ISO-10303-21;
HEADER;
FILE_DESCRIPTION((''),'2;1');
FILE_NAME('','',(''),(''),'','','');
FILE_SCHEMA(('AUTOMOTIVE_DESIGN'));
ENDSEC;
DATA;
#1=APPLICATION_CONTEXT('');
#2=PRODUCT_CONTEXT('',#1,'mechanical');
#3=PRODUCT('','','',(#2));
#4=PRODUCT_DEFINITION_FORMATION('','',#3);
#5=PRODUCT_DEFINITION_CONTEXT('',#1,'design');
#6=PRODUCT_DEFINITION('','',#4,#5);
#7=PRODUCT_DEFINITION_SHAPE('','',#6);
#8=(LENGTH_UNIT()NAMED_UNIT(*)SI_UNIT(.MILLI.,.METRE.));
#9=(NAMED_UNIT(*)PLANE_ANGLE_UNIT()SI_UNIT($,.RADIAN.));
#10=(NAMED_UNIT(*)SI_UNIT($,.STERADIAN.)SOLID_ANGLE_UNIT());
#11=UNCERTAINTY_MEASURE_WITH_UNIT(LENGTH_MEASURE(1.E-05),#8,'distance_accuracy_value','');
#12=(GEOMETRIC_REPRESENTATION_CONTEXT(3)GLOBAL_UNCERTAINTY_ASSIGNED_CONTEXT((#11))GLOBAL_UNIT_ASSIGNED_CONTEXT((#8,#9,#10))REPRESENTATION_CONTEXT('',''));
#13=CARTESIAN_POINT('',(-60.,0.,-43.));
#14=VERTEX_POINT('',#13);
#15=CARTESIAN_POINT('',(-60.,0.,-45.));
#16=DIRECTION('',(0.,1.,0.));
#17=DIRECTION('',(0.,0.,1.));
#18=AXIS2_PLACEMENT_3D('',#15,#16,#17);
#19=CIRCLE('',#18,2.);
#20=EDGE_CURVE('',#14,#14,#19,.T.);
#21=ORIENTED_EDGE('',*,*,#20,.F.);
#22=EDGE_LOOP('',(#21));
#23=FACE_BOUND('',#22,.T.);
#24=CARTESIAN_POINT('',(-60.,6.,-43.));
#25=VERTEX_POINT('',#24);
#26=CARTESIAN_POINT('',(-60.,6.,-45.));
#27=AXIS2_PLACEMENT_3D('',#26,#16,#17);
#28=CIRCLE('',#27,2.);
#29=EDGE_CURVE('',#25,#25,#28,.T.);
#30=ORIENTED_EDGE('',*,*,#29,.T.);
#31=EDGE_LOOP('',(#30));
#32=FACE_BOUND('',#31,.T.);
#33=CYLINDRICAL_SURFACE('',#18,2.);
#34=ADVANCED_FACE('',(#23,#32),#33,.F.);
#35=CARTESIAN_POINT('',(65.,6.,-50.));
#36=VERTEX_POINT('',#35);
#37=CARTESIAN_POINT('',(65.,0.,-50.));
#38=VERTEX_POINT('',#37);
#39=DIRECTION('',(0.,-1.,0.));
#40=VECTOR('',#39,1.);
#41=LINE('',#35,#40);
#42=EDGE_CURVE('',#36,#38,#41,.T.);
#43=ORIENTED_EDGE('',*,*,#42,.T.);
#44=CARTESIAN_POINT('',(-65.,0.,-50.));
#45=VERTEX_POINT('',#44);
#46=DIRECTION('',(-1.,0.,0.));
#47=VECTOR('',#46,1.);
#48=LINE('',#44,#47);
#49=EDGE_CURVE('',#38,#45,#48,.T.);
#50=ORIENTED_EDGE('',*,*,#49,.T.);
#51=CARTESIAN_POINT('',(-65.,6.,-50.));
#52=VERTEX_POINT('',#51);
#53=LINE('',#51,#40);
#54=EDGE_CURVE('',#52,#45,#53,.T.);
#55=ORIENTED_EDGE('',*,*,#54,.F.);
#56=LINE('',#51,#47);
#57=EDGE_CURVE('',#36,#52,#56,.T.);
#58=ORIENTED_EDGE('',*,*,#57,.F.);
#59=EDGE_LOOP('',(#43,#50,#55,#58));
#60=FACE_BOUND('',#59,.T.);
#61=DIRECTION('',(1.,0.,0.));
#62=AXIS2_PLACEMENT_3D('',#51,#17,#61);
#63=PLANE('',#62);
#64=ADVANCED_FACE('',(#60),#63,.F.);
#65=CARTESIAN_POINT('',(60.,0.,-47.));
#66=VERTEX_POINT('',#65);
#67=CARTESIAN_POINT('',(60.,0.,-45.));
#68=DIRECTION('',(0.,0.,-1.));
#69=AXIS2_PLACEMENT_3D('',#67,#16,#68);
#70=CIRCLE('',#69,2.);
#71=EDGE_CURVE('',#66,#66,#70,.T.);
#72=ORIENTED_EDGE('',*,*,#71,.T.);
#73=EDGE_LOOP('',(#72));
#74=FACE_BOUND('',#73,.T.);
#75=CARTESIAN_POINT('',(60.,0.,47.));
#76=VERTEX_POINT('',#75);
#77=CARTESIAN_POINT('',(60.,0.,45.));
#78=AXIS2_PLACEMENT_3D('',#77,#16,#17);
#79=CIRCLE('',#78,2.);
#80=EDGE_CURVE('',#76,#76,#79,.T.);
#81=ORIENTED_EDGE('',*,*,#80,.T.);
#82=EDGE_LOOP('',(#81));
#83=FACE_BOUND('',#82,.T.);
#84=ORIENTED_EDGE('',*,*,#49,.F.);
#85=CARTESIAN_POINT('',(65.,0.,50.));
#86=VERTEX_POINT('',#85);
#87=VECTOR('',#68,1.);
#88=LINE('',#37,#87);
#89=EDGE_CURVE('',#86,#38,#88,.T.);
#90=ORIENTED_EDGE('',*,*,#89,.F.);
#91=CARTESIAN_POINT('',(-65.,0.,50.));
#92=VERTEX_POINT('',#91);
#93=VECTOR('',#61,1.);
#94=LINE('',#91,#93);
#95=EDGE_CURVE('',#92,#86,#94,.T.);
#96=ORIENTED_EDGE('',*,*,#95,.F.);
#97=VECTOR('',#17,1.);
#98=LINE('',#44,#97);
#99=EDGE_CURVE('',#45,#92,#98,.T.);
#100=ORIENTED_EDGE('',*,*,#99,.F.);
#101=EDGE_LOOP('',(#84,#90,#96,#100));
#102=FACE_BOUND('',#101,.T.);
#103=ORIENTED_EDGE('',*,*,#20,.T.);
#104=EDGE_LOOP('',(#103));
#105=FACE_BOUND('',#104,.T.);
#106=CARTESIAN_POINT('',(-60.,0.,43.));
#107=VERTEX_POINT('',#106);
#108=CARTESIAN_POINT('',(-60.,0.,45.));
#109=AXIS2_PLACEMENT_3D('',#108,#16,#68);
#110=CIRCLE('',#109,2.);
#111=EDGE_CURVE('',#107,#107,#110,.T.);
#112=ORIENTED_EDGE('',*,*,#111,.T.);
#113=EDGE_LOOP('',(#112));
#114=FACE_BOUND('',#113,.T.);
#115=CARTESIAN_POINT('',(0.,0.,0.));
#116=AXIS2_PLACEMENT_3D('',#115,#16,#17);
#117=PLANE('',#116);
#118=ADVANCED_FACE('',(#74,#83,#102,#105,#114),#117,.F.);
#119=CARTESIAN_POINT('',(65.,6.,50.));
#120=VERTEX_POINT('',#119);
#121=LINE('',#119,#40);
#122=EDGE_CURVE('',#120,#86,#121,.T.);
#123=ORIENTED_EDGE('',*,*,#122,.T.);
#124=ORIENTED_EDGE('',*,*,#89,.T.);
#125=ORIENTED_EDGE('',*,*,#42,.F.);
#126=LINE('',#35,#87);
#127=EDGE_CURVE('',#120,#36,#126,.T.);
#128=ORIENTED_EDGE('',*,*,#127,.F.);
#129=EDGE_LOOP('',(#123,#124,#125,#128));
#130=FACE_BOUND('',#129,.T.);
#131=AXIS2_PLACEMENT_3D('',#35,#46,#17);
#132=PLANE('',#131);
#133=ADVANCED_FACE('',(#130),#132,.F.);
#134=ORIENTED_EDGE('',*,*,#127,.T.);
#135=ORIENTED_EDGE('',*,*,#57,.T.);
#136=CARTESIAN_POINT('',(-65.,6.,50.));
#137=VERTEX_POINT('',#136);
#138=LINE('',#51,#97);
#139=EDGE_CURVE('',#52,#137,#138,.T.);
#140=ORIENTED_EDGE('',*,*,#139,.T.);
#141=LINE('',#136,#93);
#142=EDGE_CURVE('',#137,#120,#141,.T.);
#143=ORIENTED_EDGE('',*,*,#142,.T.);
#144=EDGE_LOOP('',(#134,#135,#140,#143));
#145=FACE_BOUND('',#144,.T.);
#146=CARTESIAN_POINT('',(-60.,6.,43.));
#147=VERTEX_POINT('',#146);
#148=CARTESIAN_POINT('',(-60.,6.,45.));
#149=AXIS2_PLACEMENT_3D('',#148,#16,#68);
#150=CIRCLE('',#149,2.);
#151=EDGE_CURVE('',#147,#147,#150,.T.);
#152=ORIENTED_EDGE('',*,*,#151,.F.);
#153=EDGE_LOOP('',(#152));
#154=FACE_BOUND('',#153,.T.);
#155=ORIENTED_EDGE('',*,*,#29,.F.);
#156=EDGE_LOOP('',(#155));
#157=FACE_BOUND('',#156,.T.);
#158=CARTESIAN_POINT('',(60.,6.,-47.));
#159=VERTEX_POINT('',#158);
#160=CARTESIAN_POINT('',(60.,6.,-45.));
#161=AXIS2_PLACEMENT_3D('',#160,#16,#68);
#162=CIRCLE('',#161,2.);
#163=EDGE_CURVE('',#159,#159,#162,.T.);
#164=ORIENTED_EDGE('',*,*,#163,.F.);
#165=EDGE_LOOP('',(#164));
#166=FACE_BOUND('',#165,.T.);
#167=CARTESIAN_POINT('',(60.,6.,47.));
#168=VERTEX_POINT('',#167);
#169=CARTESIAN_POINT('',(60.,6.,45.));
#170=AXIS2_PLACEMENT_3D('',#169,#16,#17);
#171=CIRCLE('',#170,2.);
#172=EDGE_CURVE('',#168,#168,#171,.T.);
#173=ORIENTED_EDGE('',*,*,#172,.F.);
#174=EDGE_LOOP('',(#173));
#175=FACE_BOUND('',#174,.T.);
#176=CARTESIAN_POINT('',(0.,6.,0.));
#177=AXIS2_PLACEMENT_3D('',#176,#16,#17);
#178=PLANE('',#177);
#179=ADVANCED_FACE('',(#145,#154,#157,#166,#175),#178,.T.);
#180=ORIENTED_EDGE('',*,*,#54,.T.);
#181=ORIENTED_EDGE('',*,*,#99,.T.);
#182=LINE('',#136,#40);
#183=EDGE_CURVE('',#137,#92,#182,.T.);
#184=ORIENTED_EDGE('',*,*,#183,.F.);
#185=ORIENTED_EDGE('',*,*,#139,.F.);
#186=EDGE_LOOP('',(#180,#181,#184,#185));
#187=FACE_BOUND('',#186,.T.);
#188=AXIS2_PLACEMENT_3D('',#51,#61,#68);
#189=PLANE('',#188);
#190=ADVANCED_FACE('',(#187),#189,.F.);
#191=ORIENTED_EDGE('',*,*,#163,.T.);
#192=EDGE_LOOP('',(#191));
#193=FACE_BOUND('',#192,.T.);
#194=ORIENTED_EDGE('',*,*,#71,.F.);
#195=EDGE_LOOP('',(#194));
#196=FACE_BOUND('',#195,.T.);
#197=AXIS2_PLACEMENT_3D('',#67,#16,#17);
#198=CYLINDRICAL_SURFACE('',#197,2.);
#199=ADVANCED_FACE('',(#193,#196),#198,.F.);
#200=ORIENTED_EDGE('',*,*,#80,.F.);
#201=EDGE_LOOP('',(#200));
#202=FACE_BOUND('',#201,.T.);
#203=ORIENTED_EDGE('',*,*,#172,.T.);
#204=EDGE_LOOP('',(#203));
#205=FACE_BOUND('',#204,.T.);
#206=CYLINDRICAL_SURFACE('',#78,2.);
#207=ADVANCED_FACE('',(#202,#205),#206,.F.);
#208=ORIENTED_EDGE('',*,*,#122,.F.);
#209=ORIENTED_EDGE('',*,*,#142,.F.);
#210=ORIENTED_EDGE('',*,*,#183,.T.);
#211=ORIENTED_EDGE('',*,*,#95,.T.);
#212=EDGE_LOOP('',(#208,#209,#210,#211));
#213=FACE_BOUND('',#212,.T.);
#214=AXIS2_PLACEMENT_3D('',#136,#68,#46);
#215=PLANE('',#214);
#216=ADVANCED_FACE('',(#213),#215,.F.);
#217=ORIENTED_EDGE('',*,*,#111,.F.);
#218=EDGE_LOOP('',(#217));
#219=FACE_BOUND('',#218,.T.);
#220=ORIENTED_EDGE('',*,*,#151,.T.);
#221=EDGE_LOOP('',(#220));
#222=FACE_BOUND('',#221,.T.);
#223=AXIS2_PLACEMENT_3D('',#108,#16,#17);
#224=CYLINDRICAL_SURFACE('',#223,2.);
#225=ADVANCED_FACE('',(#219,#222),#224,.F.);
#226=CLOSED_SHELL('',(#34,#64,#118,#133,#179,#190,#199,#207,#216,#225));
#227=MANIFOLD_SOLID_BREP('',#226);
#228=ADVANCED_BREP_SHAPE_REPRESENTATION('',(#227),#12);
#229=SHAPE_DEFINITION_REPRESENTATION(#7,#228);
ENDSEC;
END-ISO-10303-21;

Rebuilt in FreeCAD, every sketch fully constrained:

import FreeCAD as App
import Part
import Sketcher
from FreeCAD import Vector
Q = App.Units.Quantity


def add_polygon(sketch, points):
    """Adds a closed chain of lines whose ends are joined by coincident constraints."""
    first, n = sketch.GeometryCount, len(points)
    for a, b in zip(points, points[1:] + points[:1]):
        sketch.addGeometry(Part.LineSegment(App.Vector(*a, 0), App.Vector(*b, 0)), False)
    for i in range(n):
        sketch.addConstraint(Sketcher.Constraint("Coincident", first + i, 2, first + (i + 1) % n, 1))

doc = App.newDocument("Part")
params = doc.addObject("Spreadsheet::Sheet", "Params")
for row, (alias, value) in enumerate([
    ("sketch1_width", "130 mm"),
    ("sketch1_height", "100 mm"),
    ("pad1_length", "6 mm"),
    ("sketch2_diameter", "4 mm"),
], start=1):
    params.set(f"A{row}", alias)
    params.set(f"B{row}", "=" + value)
    params.setAlias(f"B{row}", alias)

body = doc.addObject("PartDesign::Body", "Body")

sketch1 = body.newObject("Sketcher::SketchObject", "Sketch")
sketch1.AttachmentSupport = (doc.getObject("XZ_Plane"), [""])
sketch1.MapMode = "FlatFace"
add_polygon(sketch1, [(-65, -50), (-65, 50), (65, 50), (65, -50)])
sketch1.addConstraint(Sketcher.Constraint("Vertical", 0))
sketch1.addConstraint(Sketcher.Constraint("Horizontal", 1))
sketch1.addConstraint(Sketcher.Constraint("Vertical", 2))
sketch1.addConstraint(Sketcher.Constraint("Horizontal", 3))
sketch1.addConstraint(Sketcher.Constraint("Symmetric", 0, 2, 2, 2, -1, 1))
sketch1.addConstraint(Sketcher.Constraint("DistanceX", 1, 1, 1, 2, Q("130 mm")))
sketch1.addConstraint(Sketcher.Constraint("DistanceY", 0, 1, 0, 2, Q("100 mm")))
sketch1.setExpression("Constraints[9]", "Params.sketch1_width")
sketch1.setExpression("Constraints[10]", "Params.sketch1_height")
pad1 = body.newObject("PartDesign::Pad", "Pad")
pad1.Profile = sketch1
pad1.setExpression("Length", "Params.pad1_length")
pad1.Reversed = True

sketch2 = body.newObject("Sketcher::SketchObject", "Sketch001")
sketch2.AttachmentSupport = (doc.getObject("XZ_Plane"), [""])
sketch2.MapMode = "FlatFace"
sketch2.AttachmentOffset = App.Placement(Vector(0, 0, -6), App.Rotation())
sketch2.addGeometry(Part.Circle(Vector(-60, -45, 0), Vector(0, 0, 1), 2), False)
sketch2.addGeometry(Part.Circle(Vector(-60, 45, 0), Vector(0, 0, 1), 2), False)
sketch2.addGeometry(Part.Circle(Vector(60, 45, 0), Vector(0, 0, 1), 2), False)
sketch2.addGeometry(Part.Circle(Vector(60, -45, 0), Vector(0, 0, 1), 2), False)
sketch2.addConstraint(Sketcher.Constraint("Equal", 0, 1))
sketch2.addConstraint(Sketcher.Constraint("Equal", 1, 2))
sketch2.addConstraint(Sketcher.Constraint("Equal", 2, 3))
sketch2.addConstraint(Sketcher.Constraint("Symmetric", 0, 3, 2, 3, -1, 1))
sketch2.addConstraint(Sketcher.Constraint("Symmetric", 1, 3, 3, 3, -1, 1))
sketch2.addConstraint(Sketcher.Constraint("Symmetric", 1, 3, 2, 3, -2))
sketch2.addConstraint(Sketcher.Constraint("Diameter", 0, Q("4 mm")))
sketch2.addConstraint(Sketcher.Constraint("DistanceX", 0, 3, -1, 1, Q("60 mm")))
sketch2.addConstraint(Sketcher.Constraint("DistanceY", 0, 3, -1, 1, Q("45 mm")))
sketch2.setExpression("Constraints[6]", "Params.sketch2_diameter")
pocket1 = body.newObject("PartDesign::Pocket", "Pocket")
pocket1.Profile = sketch2
pocket1.Type = "ThroughAll"
pocket1.Reversed = True

doc.recompute()
